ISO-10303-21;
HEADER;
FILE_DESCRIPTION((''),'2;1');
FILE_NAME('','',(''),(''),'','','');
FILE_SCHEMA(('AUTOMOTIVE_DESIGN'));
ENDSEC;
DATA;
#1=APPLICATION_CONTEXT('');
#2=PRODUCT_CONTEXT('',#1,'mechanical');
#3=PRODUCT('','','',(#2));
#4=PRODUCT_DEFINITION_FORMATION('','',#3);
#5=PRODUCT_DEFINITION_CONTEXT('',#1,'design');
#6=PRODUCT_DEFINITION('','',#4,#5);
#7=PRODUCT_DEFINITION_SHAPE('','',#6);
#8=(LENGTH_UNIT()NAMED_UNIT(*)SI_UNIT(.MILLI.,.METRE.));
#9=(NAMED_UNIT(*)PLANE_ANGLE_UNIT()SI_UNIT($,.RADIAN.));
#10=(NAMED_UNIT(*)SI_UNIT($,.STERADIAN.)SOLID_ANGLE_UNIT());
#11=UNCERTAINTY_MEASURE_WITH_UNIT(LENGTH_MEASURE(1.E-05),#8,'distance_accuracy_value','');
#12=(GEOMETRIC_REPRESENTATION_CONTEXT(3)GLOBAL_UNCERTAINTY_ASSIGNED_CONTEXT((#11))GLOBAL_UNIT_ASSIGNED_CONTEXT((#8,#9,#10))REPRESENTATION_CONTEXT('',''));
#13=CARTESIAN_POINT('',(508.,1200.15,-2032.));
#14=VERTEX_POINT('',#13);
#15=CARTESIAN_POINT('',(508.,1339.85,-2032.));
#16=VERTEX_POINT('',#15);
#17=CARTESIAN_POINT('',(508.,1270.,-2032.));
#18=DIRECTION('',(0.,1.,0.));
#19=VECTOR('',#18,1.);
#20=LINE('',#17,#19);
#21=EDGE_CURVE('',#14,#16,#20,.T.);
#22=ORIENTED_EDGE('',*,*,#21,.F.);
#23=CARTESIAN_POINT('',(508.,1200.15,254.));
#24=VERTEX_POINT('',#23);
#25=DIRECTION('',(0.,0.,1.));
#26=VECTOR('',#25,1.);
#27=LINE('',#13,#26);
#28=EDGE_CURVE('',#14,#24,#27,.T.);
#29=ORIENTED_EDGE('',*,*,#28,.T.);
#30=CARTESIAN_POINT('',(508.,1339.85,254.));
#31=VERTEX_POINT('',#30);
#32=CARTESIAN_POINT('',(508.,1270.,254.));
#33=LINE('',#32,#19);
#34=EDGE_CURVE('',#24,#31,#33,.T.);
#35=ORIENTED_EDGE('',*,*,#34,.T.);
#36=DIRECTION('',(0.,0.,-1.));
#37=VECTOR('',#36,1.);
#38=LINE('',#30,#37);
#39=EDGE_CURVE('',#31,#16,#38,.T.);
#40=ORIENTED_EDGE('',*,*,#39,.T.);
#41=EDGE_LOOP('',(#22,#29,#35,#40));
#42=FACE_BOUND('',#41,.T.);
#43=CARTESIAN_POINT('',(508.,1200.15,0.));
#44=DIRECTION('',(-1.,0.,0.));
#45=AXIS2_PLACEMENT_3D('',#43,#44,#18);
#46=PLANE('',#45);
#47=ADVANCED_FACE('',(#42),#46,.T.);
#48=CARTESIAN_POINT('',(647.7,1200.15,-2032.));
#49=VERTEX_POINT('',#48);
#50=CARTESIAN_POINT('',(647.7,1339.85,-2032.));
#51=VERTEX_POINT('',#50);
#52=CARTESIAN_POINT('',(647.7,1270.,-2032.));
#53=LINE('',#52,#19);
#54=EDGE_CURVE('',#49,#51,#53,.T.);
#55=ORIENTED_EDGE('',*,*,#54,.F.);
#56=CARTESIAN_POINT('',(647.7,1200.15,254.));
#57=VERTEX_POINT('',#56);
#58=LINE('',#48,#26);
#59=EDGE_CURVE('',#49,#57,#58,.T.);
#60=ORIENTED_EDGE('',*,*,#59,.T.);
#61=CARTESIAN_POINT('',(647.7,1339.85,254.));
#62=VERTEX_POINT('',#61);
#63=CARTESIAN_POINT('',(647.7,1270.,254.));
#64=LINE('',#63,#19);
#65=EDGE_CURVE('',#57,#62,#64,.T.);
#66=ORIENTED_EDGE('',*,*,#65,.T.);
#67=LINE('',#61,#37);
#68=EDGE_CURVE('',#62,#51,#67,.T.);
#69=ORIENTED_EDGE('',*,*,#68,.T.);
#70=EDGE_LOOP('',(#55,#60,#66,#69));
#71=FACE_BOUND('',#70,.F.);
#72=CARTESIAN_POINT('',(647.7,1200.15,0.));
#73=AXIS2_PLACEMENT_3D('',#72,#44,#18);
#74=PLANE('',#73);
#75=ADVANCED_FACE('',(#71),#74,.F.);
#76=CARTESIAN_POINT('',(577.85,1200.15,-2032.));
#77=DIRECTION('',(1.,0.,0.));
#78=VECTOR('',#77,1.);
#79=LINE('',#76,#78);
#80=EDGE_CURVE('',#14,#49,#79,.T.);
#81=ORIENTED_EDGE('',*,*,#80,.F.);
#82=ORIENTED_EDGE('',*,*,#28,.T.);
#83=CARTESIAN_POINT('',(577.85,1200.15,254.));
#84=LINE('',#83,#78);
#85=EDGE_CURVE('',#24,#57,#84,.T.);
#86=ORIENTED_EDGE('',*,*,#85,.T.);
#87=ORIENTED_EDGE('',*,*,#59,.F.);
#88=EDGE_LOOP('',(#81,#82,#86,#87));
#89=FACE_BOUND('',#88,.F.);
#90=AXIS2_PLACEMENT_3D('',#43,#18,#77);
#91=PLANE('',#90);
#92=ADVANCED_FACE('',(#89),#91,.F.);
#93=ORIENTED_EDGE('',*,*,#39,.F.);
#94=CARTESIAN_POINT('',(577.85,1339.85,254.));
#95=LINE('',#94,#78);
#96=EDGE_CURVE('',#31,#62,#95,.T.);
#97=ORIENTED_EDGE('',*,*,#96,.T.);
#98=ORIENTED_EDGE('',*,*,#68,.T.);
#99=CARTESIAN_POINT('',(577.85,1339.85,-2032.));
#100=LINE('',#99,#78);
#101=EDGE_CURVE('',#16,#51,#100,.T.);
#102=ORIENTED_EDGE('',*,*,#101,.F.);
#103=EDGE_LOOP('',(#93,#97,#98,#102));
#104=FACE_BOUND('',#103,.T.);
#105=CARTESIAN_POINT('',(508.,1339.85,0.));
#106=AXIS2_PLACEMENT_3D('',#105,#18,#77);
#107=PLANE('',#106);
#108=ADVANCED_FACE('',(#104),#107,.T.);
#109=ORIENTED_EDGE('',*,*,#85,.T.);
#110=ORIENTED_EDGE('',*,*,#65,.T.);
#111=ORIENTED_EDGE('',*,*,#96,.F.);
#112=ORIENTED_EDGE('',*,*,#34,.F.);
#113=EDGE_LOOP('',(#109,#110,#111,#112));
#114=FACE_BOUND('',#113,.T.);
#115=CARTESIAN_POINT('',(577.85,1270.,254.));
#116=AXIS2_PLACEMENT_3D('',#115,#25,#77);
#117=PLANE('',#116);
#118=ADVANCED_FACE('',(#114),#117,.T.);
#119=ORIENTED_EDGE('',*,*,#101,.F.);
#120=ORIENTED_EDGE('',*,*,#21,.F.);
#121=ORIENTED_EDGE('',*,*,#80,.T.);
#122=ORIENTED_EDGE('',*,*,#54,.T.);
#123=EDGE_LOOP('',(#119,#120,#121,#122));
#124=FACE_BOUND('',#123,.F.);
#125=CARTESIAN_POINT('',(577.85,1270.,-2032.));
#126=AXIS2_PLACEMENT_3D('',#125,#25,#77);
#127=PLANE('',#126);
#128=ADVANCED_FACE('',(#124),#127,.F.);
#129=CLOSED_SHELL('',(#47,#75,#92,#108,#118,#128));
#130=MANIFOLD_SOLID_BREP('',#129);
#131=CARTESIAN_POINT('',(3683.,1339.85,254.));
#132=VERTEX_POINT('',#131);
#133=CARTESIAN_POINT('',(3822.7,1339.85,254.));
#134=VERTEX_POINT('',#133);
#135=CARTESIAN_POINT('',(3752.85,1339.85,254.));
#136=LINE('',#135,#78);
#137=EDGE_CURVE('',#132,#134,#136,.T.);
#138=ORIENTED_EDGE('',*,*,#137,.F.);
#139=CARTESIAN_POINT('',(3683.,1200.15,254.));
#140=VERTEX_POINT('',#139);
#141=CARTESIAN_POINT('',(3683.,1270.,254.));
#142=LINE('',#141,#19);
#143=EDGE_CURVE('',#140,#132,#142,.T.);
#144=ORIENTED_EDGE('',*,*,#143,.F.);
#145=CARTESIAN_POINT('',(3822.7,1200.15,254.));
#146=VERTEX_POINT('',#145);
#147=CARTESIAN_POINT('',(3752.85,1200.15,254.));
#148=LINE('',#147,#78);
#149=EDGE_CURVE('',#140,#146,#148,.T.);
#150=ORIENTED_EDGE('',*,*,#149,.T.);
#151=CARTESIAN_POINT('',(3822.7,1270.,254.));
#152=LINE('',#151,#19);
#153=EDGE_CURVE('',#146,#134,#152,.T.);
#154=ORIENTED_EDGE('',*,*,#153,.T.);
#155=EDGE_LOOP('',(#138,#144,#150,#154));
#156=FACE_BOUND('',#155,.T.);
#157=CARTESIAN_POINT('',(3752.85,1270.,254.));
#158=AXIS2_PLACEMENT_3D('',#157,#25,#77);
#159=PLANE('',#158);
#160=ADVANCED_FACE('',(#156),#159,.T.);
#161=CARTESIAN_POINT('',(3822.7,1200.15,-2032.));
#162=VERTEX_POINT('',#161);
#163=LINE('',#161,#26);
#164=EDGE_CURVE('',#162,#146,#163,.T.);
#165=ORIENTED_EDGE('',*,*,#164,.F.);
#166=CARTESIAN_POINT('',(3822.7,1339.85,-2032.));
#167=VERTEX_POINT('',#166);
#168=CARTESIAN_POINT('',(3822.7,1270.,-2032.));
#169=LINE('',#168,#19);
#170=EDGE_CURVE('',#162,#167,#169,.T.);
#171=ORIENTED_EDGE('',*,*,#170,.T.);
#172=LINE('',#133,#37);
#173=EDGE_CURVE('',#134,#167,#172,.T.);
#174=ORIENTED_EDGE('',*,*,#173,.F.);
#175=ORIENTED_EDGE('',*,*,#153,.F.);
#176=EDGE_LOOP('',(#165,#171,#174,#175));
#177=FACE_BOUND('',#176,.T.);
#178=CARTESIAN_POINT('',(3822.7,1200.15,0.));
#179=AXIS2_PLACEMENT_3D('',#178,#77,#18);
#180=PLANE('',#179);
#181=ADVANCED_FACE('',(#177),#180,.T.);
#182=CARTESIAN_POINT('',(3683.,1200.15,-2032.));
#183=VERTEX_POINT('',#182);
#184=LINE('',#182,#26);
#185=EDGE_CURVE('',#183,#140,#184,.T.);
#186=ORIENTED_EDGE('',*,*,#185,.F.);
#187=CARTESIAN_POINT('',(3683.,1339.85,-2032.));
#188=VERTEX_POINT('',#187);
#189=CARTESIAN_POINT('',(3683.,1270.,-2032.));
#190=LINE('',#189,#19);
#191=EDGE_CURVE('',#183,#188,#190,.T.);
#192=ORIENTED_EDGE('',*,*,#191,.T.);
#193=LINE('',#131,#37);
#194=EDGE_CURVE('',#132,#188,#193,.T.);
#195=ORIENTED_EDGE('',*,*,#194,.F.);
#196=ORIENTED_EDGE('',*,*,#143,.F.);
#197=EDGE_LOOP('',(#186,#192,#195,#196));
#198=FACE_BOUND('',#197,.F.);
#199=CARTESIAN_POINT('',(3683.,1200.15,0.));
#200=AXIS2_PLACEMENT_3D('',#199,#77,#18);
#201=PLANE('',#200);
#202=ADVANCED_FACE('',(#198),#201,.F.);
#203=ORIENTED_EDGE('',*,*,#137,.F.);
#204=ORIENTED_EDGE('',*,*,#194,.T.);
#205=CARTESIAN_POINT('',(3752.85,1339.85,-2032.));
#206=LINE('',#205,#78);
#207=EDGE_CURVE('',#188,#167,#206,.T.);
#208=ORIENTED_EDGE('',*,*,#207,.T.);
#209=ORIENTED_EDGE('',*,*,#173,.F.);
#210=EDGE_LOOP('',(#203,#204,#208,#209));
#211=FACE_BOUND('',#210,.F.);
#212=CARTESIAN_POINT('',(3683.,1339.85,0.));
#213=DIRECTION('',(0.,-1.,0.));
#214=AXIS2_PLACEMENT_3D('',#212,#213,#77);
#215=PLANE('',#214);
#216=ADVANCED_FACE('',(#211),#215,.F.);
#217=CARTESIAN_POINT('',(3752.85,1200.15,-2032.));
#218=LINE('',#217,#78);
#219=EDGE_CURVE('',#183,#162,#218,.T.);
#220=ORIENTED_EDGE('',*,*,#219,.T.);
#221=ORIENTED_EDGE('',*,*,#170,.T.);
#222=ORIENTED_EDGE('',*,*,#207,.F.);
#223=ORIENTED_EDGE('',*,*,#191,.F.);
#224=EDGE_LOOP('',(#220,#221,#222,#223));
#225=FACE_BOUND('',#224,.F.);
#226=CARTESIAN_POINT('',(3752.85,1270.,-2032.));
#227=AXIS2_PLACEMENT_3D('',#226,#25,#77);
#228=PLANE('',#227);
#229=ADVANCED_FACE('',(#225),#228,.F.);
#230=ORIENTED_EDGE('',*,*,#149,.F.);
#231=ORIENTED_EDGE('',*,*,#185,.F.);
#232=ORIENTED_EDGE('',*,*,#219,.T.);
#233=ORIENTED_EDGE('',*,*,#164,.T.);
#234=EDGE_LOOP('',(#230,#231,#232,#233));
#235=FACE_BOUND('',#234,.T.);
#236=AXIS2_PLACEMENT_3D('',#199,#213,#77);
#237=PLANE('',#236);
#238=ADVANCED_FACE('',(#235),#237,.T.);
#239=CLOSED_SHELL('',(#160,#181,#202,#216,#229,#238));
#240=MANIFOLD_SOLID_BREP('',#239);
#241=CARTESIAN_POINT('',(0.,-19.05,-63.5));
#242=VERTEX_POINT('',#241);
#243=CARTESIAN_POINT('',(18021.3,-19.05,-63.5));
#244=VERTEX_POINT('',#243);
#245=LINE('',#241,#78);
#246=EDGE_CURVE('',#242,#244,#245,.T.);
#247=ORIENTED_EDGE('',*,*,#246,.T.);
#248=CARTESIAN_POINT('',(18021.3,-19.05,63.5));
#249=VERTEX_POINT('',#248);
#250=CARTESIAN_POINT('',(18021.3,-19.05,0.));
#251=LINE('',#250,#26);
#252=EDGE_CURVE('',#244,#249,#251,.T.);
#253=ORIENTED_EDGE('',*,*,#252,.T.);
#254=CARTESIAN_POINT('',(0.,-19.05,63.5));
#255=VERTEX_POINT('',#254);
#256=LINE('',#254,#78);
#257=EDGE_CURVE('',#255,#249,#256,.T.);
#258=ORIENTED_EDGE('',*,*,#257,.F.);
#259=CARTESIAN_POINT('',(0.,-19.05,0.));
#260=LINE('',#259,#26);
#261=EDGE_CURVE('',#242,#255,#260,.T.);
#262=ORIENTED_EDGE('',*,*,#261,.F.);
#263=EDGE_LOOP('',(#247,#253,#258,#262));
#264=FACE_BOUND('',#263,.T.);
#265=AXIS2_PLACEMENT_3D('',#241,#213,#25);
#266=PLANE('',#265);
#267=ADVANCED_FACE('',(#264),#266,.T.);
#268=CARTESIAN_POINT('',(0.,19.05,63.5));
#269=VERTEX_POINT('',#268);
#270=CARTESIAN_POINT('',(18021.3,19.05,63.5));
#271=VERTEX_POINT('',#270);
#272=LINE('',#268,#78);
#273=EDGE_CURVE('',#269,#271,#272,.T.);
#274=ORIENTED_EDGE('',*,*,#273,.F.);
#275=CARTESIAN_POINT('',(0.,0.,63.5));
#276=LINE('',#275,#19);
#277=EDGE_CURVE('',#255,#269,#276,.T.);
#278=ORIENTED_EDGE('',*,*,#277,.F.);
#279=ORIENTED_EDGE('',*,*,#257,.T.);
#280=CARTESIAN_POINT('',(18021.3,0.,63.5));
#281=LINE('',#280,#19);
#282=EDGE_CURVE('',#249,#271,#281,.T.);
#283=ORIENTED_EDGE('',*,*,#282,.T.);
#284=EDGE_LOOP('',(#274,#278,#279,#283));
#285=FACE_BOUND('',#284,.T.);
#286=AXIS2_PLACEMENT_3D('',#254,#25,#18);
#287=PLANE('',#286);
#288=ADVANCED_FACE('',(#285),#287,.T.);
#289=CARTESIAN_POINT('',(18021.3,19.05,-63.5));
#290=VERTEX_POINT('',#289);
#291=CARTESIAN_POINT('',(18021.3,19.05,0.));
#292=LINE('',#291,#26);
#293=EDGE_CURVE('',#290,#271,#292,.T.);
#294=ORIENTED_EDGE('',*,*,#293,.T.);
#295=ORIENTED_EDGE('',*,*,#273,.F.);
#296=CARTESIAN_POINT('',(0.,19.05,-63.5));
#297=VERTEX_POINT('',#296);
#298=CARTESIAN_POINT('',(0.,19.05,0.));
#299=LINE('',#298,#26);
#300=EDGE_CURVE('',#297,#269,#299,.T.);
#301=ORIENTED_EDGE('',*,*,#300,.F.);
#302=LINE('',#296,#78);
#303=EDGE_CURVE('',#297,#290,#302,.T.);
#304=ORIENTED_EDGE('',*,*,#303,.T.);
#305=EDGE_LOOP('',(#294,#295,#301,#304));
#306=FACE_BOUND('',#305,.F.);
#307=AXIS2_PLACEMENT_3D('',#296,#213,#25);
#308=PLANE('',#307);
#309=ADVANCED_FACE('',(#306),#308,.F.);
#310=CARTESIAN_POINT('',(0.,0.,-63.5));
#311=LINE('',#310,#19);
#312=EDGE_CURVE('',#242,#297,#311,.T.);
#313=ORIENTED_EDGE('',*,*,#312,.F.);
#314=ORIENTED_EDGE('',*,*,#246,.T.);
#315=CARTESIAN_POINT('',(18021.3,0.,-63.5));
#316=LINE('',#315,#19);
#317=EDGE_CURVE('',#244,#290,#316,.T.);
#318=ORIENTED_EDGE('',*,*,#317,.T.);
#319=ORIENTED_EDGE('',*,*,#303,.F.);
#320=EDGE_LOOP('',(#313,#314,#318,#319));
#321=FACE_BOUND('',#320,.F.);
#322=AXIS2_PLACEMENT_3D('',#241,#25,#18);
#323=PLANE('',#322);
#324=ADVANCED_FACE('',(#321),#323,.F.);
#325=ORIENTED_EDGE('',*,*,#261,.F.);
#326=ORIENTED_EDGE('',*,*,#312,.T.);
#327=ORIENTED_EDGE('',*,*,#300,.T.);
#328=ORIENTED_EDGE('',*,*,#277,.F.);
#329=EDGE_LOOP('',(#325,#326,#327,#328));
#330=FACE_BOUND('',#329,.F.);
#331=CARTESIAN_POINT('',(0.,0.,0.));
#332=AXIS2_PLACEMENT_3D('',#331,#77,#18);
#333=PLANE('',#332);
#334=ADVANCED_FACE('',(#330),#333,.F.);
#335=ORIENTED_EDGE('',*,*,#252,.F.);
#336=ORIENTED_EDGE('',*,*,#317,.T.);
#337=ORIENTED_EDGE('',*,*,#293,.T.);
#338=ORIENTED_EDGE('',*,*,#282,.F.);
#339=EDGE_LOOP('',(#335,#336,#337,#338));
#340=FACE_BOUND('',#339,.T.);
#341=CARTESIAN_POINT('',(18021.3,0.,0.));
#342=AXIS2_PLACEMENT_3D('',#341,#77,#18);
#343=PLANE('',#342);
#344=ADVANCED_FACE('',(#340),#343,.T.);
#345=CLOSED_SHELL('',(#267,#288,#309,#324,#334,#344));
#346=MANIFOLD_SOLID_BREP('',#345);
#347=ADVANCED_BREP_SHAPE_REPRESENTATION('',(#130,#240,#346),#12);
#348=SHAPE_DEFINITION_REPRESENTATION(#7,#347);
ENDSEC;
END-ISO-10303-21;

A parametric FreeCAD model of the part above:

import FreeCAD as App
import Part
import Sketcher
Q = App.Units.Quantity

doc = App.newDocument("Part")
body = doc.addObject("PartDesign::Body", "Body")

# Sketch on YZ plane
sketch1 = doc.addObject("Sketcher::SketchObject", "Sketch")
body.addObject(sketch1)
sketch1.AttachmentSupport = (doc.YZ_Plane, [""])
sketch1.MapMode = "FlatFace"
sketch1.addGeometry(Part.LineSegment(App.Vector(-19, 64, 0), App.Vector(-19, -64, 0)), False)
sketch1.addGeometry(Part.LineSegment(App.Vector(-19, -64, 0), App.Vector(19, -64, 0)), False)
sketch1.addGeometry(Part.LineSegment(App.Vector(19, -64, 0), App.Vector(19, 64, 0)), False)
sketch1.addGeometry(Part.LineSegment(App.Vector(19, 64, 0), App.Vector(-19, 64, 0)), False)
sketch1.addConstraint(Sketcher.Constraint("Coincident", 0, 2, 1, 1))
sketch1.addConstraint(Sketcher.Constraint("Coincident", 1, 2, 2, 1))
sketch1.addConstraint(Sketcher.Constraint("Coincident", 2, 2, 3, 1))
sketch1.addConstraint(Sketcher.Constraint("Coincident", 3, 2, 0, 1))
sketch1.addConstraint(Sketcher.Constraint("Vertical", 0))
sketch1.addConstraint(Sketcher.Constraint("Horizontal", 1))
sketch1.addConstraint(Sketcher.Constraint("Vertical", 2))
sketch1.addConstraint(Sketcher.Constraint("Horizontal", 3))
sketch1.addConstraint(Sketcher.Constraint("Symmetric", 0, 2, 2, 2, -1, 1))
sketch1.addConstraint(Sketcher.Constraint("DistanceY", 0, 2, 0, 1, Q("5 in")))
sketch1.addConstraint(Sketcher.Constraint("DistanceX", 1, 1, 1, 2, Q("1.5 in")))
pad1 = doc.addObject("PartDesign::Pad", "Pad")
body.addObject(pad1)
pad1.Profile = sketch1
pad1.Length = Q("709.5 in")
body2 = doc.addObject("PartDesign::Body", "Body001")

# Sketch on XY plane
sketch2 = doc.addObject("Sketcher::SketchObject", "Sketch001")
body2.addObject(sketch2)
sketch2.AttachmentSupport = (doc.getObject("XY_Plane001"), [""])
sketch2.MapMode = "FlatFace"
sketch2.addGeometry(Part.LineSegment(App.Vector(508, 1340, 0), App.Vector(508, 1200, 0)), False)
sketch2.addGeometry(Part.LineSegment(App.Vector(508, 1200, 0), App.Vector(648, 1200, 0)), False)
sketch2.addGeometry(Part.LineSegment(App.Vector(648, 1200, 0), App.Vector(648, 1340, 0)), False)
sketch2.addGeometry(Part.LineSegment(App.Vector(648, 1340, 0), App.Vector(508, 1340, 0)), False)
sketch2.addConstraint(Sketcher.Constraint("Coincident", 0, 2, 1, 1))
sketch2.addConstraint(Sketcher.Constraint("Coincident", 1, 2, 2, 1))
sketch2.addConstraint(Sketcher.Constraint("Coincident", 2, 2, 3, 1))
sketch2.addConstraint(Sketcher.Constraint("Coincident", 3, 2, 0, 1))
sketch2.addConstraint(Sketcher.Constraint("Vertical", 0))
sketch2.addConstraint(Sketcher.Constraint("Horizontal", 1))
sketch2.addConstraint(Sketcher.Constraint("Vertical", 2))
sketch2.addConstraint(Sketcher.Constraint("Horizontal", 3))
sketch2.addConstraint(Sketcher.Constraint("Equal", 3, 0))
sketch2.addConstraint(Sketcher.Constraint("DistanceX", 1, 1, 1, 2, Q("5.5 in")))
sketch2.addConstraint(Sketcher.Constraint("DistanceX", -1, 1, 0, 2, Q("20 in")))
sketch2.addConstraint(Sketcher.Constraint("DistanceY", -1, 1, 0, 2, Q("47.25 in")))
pad2 = doc.addObject("PartDesign::Pad", "Pad001")
body2.addObject(pad2)
pad2.Profile = sketch2
pad2.Type = "TwoLengths"
pad2.Length = Q("80 in")
pad2.Length2 = Q("10 in")
pad2.Reversed = True
body3 = doc.addObject("PartDesign::Body", "Body002")

# Sketch on XY plane
sketch3 = doc.addObject("Sketcher::SketchObject", "Sketch002")
body3.addObject(sketch3)
sketch3.AttachmentSupport = (doc.getObject("XY_Plane002"), [""])
sketch3.MapMode = "FlatFace"
sketch3.addGeometry(Part.LineSegment(App.Vector(3683, 1340, 0), App.Vector(3683, 1200, 0)), False)
sketch3.addGeometry(Part.LineSegment(App.Vector(3683, 1200, 0), App.Vector(3823, 1200, 0)), False)
sketch3.addGeometry(Part.LineSegment(App.Vector(3823, 1200, 0), App.Vector(3823, 1340, 0)), False)
sketch3.addGeometry(Part.LineSegment(App.Vector(3823, 1340, 0), App.Vector(3683, 1340, 0)), False)
sketch3.addConstraint(Sketcher.Constraint("Coincident", 0, 2, 1, 1))
sketch3.addConstraint(Sketcher.Constraint("Coincident", 1, 2, 2, 1))
sketch3.addConstraint(Sketcher.Constraint("Coincident", 2, 2, 3, 1))
sketch3.addConstraint(Sketcher.Constraint("Coincident", 3, 2, 0, 1))
sketch3.addConstraint(Sketcher.Constraint("Vertical", 0))
sketch3.addConstraint(Sketcher.Constraint("Horizontal", 1))
sketch3.addConstraint(Sketcher.Constraint("Vertical", 2))
sketch3.addConstraint(Sketcher.Constraint("Horizontal", 3))
sketch3.addConstraint(Sketcher.Constraint("Equal", 3, 0))
sketch3.addConstraint(Sketcher.Constraint("DistanceX", 1, 1, 1, 2, Q("5.5 in")))
sketch3.addConstraint(Sketcher.Constraint("DistanceX", -1, 1, 0, 2, Q("145 in")))
sketch3.addConstraint(Sketcher.Constraint("DistanceY", -1, 1, 0, 2, Q("47.25 in")))
pad3 = doc.addObject("PartDesign::Pad", "Pad002")
body3.addObject(pad3)
pad3.Profile = sketch3
pad3.Type = "TwoLengths"
pad3.Length = Q("10 in")
pad3.Length2 = Q("80 in")

doc.recompute()
